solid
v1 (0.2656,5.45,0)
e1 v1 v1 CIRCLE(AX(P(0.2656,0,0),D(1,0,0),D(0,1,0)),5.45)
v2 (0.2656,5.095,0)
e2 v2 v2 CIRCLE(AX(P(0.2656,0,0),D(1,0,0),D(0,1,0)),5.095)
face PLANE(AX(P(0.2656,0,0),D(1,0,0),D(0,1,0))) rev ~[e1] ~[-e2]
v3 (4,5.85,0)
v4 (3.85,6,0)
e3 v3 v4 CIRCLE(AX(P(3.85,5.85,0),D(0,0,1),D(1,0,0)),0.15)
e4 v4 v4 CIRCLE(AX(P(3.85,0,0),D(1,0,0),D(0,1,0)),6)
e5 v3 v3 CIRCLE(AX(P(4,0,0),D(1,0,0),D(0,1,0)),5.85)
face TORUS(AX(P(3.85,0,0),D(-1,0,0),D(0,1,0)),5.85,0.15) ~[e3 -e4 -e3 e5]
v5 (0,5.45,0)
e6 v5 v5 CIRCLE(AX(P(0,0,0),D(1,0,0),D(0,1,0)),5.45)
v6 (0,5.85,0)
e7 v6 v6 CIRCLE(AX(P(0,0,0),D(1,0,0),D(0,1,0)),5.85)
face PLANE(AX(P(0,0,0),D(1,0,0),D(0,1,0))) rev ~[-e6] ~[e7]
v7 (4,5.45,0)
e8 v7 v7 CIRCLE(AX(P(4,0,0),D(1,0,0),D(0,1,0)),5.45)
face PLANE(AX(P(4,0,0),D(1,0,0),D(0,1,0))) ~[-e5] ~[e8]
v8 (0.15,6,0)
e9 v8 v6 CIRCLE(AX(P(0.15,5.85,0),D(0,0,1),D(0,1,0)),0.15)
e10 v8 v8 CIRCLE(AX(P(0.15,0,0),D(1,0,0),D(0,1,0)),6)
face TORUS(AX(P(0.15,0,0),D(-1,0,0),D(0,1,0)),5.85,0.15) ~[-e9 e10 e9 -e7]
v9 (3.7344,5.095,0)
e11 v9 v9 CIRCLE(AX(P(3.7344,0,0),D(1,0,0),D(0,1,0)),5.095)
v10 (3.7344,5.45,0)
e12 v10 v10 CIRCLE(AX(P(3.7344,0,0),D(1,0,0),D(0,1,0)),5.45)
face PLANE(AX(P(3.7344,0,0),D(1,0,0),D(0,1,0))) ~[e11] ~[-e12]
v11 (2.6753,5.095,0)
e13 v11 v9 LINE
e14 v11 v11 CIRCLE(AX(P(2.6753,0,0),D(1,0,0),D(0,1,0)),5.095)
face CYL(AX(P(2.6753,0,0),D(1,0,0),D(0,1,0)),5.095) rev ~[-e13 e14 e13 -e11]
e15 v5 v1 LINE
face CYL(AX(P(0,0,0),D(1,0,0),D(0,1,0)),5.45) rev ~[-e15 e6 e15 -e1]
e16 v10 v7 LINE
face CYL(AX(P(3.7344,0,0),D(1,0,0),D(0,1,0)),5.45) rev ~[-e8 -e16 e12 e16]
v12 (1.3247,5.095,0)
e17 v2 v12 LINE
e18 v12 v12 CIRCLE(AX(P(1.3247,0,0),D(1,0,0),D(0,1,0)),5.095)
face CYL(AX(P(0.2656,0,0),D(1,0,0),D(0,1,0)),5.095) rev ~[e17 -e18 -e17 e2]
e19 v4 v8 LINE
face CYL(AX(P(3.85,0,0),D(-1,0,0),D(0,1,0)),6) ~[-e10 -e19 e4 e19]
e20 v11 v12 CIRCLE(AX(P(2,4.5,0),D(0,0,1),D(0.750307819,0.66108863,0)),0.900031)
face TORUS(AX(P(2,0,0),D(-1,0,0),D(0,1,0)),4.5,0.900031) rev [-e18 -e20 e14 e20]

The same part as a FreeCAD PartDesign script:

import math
import FreeCAD as App
import Part
import Sketcher
Q = App.Units.Quantity

doc = App.newDocument("Part")
body = doc.addObject("PartDesign::Body", "Body")

sketch1 = body.newObject("Sketcher::SketchObject", "Sketch")
sketch1.AttachmentSupport = (doc.getObject("XY_Plane"), [""])
sketch1.MapMode = "FlatFace"
sketch1.addGeometry([
    Part.LineSegment(App.Vector(0, 5.85, 0), App.Vector(0, 5.45, 0)),
    Part.LineSegment(App.Vector(0, 5.45, 0), App.Vector(0.27, 5.45, 0)),
    Part.LineSegment(App.Vector(0.27, 5.45, 0), App.Vector(0.27, 5.09, 0)),
    Part.LineSegment(App.Vector(0.27, 5.09, 0), App.Vector(1.32, 5.09, 0)),
    Part.ArcOfCircle(Part.Circle(App.Vector(2, 4.5, 0), App.Vector(0, 0, 1), 0.9), math.radians(41), math.radians(139)),
    Part.LineSegment(App.Vector(2.68, 5.09, 0), App.Vector(3.73, 5.09, 0)),
    Part.LineSegment(App.Vector(3.73, 5.09, 0), App.Vector(3.73, 5.45, 0)),
    Part.LineSegment(App.Vector(3.73, 5.45, 0), App.Vector(4, 5.45, 0)),
    Part.LineSegment(App.Vector(4, 5.45, 0), App.Vector(4, 5.85, 0)),
    Part.ArcOfCircle(Part.Circle(App.Vector(3.85, 5.85, 0), App.Vector(0, 0, 1), 0.15), math.radians(0), math.radians(90)),
    Part.LineSegment(App.Vector(3.85, 6, 0), App.Vector(0.15, 6, 0)),
    Part.ArcOfCircle(Part.Circle(App.Vector(0.15, 5.85, 0), App.Vector(0, 0, 1), 0.15), math.radians(90), math.radians(180)),
], False)
sketch1.addConstraint([
    Sketcher.Constraint("Coincident", 0, 2, 1, 1),
    Sketcher.Constraint("Coincident", 1, 2, 2, 1),
    Sketcher.Constraint("Coincident", 2, 2, 3, 1),
    Sketcher.Constraint("Coincident", 3, 2, 4, 2),
    Sketcher.Constraint("Coincident", 4, 1, 5, 1),
    Sketcher.Constraint("Coincident", 5, 2, 6, 1),
    Sketcher.Constraint("Coincident", 6, 2, 7, 1),
    Sketcher.Constraint("Coincident", 7, 2, 8, 1),
    Sketcher.Constraint("Tangent", 8, 2, 9, 1),
    Sketcher.Constraint("Tangent", 9, 2, 10, 1),
    Sketcher.Constraint("Tangent", 10, 2, 11, 1),
    Sketcher.Constraint("Tangent", 11, 2, 0, 1),
    Sketcher.Constraint("Vertical", 0),
    Sketcher.Constraint("Horizontal", 1),
    Sketcher.Constraint("Vertical", 2),
    Sketcher.Constraint("Horizontal", 3),
    Sketcher.Constraint("Horizontal", 5),
    Sketcher.Constraint("Vertical", 6),
    Sketcher.Constraint("Horizontal", 7),
    Sketcher.Constraint("Vertical", 8),
    Sketcher.Constraint("Horizontal", 10),
    Sketcher.Constraint("Equal", 9, 11),
    Sketcher.Constraint("PointOnObject", 0, 2, -2),
    Sketcher.Constraint("Horizontal", 3, 2, 4, 1),
    Sketcher.Constraint("Horizontal", 1, 2, 6, 2),
    Sketcher.Constraint("Equal", 3, 5),
    Sketcher.Constraint("Equal", 1, 7),
    Sketcher.Constraint("Radius", 4, Q("0.9 mm")),
    Sketcher.Constraint("Radius", 9, Q("0.15 mm")),
    Sketcher.Constraint("DistanceX", 10, 2, 10, 1, Q("3.7 mm")),
    Sketcher.Constraint("DistanceY", 0, 2, 0, 1, Q("0.4 mm")),
    Sketcher.Constraint("DistanceY", -1, 1, 9, 2, Q("6 mm")),
    Sketcher.Constraint("DistanceY", -1, 1, 4, 3, Q("4.5 mm")),
    Sketcher.Constraint("DistanceX", 3, 1, 3, 2, Q("1.059 mm")),
    Sketcher.Constraint("DistanceY", 2, 2, 2, 1, Q("0.355 mm")),
])
revolution = body.newObject("PartDesign::Revolution", "Revolution")
revolution.Profile = sketch1
revolution.ReferenceAxis = (sketch1, ["H_Axis"])
revolution.Angle = 360

doc.recompute()
